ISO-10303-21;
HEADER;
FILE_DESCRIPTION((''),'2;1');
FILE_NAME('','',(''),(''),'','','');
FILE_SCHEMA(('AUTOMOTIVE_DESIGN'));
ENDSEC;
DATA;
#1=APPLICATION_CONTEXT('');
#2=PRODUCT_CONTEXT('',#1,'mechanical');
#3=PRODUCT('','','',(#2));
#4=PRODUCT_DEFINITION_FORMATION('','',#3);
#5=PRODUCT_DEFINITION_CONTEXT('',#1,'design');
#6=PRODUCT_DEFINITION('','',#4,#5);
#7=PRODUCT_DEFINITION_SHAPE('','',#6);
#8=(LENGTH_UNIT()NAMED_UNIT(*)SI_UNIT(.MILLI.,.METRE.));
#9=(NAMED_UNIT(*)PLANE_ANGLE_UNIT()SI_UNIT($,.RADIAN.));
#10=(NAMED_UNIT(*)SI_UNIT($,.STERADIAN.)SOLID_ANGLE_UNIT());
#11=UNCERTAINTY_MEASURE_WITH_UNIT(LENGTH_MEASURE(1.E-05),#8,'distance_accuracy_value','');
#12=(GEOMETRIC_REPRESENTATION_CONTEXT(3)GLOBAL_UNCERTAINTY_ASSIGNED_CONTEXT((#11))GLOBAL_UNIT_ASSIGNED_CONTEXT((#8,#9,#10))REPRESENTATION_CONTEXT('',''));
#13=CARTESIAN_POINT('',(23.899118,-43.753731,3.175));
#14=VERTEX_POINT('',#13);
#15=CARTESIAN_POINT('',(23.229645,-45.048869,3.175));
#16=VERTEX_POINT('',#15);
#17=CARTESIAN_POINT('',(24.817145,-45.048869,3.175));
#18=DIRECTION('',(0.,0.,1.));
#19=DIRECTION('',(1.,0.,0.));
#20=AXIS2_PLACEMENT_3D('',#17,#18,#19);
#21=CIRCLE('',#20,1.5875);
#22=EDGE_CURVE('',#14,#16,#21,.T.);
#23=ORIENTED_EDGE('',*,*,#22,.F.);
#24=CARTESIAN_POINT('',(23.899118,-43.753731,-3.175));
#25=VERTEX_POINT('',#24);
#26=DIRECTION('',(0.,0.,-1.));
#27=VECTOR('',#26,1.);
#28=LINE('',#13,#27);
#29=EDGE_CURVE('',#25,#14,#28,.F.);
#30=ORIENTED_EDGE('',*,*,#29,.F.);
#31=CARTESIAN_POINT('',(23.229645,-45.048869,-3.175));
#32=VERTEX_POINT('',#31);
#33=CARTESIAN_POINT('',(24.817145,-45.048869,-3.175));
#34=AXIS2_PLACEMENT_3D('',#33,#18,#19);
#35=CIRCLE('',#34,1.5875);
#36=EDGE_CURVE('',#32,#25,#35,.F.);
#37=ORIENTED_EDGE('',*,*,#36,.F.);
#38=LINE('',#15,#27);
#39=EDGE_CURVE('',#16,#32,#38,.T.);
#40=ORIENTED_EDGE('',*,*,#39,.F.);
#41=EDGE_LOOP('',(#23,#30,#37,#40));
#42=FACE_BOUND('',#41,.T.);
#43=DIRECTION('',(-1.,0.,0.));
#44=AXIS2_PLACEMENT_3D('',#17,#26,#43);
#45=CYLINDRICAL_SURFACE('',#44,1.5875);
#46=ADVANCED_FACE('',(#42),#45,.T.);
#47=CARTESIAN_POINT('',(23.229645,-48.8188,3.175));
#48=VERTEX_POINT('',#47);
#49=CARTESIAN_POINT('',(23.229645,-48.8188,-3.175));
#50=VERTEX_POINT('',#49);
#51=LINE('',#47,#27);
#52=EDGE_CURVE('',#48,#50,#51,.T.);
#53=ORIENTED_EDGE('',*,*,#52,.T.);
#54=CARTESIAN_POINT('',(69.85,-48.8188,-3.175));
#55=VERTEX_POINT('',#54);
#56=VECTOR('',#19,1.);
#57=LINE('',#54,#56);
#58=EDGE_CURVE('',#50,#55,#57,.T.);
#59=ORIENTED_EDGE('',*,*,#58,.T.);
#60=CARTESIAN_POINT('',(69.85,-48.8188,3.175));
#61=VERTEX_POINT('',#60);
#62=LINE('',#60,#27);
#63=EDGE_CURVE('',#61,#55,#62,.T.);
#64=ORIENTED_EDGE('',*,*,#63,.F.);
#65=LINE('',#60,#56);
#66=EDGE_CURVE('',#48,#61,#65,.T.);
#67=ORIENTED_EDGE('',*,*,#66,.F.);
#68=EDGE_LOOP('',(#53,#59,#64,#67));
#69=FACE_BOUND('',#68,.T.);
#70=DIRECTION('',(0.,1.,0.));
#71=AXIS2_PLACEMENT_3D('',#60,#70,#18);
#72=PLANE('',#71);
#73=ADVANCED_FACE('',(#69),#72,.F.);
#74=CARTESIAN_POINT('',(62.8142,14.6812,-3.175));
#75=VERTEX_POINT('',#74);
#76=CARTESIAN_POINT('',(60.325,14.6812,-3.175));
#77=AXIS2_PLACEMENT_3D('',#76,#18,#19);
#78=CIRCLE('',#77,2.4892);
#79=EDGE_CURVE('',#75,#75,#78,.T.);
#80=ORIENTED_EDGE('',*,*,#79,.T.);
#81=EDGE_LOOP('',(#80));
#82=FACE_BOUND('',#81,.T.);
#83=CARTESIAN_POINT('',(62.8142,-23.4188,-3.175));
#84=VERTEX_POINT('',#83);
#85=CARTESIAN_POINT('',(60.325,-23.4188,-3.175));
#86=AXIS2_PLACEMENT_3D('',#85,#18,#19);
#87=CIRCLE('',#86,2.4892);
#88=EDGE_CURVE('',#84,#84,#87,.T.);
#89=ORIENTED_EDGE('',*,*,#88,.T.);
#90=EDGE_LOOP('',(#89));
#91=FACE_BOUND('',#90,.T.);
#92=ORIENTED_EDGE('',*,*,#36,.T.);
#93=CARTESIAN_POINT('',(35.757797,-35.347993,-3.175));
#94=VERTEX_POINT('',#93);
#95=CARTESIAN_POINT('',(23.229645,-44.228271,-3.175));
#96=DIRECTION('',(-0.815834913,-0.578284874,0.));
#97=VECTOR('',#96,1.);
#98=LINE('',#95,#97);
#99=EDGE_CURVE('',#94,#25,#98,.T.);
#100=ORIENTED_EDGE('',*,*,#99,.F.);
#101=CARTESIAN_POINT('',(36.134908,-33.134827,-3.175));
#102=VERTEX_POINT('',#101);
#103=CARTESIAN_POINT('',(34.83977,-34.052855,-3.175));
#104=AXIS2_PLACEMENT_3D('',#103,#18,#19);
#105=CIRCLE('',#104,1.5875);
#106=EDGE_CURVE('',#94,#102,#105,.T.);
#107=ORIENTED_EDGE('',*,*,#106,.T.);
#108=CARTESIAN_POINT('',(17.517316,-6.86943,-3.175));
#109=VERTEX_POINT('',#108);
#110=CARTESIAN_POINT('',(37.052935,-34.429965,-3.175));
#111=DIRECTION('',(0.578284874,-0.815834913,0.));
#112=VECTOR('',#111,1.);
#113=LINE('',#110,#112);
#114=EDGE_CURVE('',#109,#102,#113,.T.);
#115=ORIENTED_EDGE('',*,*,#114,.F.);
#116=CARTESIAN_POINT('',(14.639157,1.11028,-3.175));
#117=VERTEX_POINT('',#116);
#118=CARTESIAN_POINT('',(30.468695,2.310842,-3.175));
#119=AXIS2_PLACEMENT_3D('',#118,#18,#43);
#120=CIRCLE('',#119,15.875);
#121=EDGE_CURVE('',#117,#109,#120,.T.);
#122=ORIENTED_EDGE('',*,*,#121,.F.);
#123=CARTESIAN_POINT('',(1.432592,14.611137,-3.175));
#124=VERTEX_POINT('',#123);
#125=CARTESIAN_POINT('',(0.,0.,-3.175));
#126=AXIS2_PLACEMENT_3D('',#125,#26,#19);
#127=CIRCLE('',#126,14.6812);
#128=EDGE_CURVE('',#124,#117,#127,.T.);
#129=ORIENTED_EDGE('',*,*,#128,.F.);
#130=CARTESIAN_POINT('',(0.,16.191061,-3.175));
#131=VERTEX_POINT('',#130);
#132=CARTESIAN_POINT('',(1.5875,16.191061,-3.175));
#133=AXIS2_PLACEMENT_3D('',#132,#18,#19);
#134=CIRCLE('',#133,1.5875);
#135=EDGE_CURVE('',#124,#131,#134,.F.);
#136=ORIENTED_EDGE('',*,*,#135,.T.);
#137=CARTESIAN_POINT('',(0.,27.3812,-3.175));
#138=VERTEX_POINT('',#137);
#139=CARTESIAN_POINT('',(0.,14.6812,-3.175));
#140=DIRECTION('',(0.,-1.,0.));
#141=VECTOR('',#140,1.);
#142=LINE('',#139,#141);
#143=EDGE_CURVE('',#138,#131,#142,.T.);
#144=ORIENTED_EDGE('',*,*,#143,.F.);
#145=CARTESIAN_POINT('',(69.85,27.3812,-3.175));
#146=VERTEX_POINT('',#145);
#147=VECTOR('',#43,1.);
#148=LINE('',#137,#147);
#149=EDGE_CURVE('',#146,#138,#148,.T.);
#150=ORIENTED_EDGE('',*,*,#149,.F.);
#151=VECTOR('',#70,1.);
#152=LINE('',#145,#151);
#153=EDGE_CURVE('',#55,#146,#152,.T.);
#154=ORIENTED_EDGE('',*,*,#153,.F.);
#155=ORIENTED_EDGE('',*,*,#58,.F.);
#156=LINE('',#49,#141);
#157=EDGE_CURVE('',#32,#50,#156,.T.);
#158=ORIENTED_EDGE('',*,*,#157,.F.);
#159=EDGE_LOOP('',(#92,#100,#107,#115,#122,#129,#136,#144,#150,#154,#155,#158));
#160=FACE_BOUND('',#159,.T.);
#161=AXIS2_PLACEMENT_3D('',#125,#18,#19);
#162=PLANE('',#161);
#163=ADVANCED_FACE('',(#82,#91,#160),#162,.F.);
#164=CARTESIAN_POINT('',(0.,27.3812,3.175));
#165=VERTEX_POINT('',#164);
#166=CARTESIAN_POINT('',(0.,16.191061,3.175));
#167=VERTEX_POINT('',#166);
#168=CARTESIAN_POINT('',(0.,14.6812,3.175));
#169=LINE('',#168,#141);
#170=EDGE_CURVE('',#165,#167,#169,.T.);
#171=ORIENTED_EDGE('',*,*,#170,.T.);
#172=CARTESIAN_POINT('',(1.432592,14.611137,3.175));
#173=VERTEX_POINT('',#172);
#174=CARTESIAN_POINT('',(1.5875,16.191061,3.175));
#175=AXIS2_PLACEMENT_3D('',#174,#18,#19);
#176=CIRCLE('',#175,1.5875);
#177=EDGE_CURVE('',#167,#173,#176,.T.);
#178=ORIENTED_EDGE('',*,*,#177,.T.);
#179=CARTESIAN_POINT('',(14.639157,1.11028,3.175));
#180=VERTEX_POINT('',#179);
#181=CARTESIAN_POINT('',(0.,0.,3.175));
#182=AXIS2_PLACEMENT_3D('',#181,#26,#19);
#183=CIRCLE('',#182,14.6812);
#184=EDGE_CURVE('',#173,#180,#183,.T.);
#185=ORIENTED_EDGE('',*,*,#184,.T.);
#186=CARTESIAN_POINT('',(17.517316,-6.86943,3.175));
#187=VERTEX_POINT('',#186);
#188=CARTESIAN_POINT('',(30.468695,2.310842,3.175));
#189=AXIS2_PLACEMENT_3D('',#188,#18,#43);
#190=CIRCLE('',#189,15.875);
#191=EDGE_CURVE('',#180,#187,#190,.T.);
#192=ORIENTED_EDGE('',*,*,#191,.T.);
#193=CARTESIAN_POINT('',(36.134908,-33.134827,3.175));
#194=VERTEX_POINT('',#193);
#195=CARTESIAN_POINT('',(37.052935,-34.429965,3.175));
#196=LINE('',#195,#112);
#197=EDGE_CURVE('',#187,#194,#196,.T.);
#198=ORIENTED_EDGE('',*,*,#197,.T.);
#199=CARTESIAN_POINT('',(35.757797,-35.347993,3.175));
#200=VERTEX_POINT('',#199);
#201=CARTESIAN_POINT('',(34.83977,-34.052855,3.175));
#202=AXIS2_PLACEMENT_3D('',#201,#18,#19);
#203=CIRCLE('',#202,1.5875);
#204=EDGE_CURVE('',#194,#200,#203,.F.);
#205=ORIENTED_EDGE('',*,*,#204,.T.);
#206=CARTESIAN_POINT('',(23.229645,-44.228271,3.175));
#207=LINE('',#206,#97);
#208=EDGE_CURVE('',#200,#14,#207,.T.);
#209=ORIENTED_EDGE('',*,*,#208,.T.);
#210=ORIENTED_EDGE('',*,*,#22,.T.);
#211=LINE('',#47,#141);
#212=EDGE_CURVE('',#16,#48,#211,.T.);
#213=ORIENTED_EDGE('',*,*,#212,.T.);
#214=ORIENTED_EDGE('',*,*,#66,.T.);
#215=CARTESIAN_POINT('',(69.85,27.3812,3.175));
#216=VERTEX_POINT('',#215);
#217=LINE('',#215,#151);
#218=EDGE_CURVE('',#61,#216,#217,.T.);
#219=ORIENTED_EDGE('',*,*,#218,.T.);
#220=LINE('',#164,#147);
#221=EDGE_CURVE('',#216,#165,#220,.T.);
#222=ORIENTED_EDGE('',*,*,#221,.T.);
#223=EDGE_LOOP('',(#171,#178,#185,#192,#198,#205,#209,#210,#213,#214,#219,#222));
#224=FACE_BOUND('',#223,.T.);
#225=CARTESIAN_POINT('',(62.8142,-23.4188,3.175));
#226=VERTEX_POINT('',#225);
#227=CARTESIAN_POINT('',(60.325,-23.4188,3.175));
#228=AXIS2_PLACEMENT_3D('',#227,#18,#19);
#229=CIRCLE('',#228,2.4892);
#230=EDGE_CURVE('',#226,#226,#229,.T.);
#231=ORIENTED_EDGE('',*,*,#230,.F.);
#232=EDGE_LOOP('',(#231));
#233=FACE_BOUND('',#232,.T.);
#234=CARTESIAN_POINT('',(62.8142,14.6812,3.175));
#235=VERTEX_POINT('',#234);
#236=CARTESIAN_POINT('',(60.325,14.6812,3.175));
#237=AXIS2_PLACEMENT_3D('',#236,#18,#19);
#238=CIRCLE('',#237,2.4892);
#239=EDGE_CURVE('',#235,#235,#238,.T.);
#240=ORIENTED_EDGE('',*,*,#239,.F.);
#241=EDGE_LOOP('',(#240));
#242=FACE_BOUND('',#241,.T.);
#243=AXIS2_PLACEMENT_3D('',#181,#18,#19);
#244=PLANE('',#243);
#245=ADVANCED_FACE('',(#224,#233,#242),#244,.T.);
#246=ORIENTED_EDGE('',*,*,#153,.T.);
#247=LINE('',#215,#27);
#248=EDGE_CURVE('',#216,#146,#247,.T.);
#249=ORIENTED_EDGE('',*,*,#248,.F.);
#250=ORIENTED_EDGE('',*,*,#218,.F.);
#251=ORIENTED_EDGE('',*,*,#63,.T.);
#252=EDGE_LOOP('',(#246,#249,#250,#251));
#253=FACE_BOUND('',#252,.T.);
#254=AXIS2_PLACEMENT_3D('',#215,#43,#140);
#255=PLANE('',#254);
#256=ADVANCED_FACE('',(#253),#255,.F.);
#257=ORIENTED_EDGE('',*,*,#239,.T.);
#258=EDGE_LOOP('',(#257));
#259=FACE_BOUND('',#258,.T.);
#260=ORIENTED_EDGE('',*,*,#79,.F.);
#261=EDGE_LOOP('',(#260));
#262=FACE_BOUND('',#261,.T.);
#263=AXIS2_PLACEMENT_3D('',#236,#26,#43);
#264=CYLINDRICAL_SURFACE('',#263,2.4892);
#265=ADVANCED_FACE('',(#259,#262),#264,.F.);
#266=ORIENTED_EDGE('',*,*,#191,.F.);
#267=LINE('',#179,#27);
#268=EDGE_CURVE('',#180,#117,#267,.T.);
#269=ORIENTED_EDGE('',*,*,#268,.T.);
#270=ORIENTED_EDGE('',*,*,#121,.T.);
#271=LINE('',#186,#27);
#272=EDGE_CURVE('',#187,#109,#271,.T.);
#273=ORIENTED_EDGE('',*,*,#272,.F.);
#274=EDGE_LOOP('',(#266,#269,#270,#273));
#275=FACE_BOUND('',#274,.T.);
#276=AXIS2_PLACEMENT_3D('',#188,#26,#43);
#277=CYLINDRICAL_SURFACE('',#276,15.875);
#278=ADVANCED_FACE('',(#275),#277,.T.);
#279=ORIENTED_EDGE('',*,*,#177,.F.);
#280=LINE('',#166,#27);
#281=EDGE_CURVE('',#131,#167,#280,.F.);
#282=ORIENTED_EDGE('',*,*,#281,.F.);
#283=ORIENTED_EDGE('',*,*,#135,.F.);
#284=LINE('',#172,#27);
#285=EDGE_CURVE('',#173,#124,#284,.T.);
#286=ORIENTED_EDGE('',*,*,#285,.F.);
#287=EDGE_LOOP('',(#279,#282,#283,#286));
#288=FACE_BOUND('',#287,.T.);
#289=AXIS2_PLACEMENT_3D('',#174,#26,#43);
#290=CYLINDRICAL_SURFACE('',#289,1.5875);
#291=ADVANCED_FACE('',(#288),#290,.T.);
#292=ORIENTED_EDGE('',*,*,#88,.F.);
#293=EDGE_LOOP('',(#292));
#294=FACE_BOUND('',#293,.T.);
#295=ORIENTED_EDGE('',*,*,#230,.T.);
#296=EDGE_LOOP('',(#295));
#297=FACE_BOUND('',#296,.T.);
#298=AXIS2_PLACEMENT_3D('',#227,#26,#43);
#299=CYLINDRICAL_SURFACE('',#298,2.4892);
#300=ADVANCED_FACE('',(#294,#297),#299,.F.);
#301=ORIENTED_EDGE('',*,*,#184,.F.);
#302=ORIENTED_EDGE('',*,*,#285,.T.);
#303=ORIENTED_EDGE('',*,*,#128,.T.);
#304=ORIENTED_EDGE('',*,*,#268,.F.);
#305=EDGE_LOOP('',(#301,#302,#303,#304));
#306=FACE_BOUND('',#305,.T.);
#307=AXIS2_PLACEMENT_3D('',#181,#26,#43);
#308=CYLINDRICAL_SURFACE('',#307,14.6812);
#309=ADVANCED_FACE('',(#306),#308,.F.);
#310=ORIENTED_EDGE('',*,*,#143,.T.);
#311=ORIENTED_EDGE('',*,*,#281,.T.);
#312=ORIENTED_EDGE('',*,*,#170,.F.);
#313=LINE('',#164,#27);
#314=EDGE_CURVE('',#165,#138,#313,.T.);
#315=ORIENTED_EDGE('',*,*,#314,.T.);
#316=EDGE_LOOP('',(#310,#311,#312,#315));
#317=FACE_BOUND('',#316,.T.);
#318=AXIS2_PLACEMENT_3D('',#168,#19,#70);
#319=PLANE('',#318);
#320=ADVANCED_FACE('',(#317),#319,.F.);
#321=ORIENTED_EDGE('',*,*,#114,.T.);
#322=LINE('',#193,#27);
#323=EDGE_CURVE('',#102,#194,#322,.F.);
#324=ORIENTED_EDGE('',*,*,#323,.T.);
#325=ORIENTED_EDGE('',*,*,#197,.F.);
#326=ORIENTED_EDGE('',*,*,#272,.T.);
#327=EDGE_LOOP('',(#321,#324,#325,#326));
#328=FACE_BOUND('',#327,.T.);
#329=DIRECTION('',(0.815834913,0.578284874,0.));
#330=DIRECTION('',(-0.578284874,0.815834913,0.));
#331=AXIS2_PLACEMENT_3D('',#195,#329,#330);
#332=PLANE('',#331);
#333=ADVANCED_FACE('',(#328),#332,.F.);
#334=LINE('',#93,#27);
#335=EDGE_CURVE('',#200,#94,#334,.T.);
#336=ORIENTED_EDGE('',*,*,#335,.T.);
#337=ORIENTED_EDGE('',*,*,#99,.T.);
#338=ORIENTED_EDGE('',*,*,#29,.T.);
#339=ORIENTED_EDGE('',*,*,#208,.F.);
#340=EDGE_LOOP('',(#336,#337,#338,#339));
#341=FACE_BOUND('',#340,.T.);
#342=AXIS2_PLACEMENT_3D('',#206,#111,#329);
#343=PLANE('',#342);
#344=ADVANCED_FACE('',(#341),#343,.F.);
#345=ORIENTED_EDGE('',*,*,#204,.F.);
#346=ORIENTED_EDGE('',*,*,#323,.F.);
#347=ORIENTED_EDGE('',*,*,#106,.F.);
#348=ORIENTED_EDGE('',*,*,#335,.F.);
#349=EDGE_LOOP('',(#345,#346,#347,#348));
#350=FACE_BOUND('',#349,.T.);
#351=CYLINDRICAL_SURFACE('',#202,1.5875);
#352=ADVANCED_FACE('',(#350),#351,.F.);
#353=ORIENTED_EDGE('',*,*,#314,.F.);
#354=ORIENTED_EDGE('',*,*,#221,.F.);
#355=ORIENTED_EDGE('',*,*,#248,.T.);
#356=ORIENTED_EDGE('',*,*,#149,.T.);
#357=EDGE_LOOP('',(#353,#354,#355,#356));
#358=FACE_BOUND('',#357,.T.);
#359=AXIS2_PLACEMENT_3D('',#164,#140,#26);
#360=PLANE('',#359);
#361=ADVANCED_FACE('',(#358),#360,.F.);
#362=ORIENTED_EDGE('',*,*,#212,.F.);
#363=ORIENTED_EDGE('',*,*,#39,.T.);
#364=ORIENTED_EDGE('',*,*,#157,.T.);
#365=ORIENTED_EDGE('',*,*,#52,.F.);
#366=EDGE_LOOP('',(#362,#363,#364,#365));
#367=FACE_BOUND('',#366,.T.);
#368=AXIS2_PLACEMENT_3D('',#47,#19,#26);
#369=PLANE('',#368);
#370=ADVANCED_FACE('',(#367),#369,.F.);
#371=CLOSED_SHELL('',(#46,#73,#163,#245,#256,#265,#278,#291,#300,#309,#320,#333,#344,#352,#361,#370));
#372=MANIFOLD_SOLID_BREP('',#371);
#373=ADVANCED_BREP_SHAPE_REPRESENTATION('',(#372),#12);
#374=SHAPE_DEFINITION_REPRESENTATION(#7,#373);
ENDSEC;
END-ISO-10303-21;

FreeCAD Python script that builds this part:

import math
import FreeCAD as App
import Part
import Sketcher
Q = App.Units.Quantity


def edges_at(feature, points):
    """Names of the edges that pass closest to the given points."""
    edges = feature.Shape.Edges
    near = lambda p: min(range(len(edges)), key=lambda i: edges[i].distToShape(Part.Vertex(*p))[0])
    return sorted({f"Edge{near(p) + 1}" for p in points})

doc = App.newDocument("Part")
body = doc.addObject("PartDesign::Body", "Body")

# Sketch on XY plane
sketch1 = doc.addObject("Sketcher::SketchObject", "Sketch")
body.addObject(sketch1)
sketch1.AttachmentSupport = (doc.XY_Plane, [""])
sketch1.MapMode = "FlatFace"
sketch1.addGeometry([
    Part.LineSegment(App.Vector(37.052935, -34.429965, 0), App.Vector(23.229645, -44.228271, 0)),  # 0
    Part.LineSegment(App.Vector(23.229645, -44.228271, 0), App.Vector(23.229645, -48.8188, 0)),  # 1
    Part.LineSegment(App.Vector(23.229645, -48.8188, 0), App.Vector(69.85, -48.8188, 0)),  # 2
    Part.LineSegment(App.Vector(69.85, -48.8188, 0), App.Vector(69.85, 27.3812, 0)),  # 3
    Part.LineSegment(App.Vector(69.85, 27.3812, 0), App.Vector(0, 27.3812, 0)),  # 4
    Part.LineSegment(App.Vector(0, 27.3812, 0), App.Vector(0, 14.6812, 0)),  # 5
    Part.ArcOfCircle(Part.Circle(App.Vector(0, 0, 0), App.Vector(0, 0, 1), 14.6812), math.radians(4.337189), math.radians(90)),  # 6
    Part.ArcOfCircle(Part.Circle(App.Vector(30.468695, 2.310842, 0), App.Vector(0, 0, 1), 15.875), math.radians(-175.662811), math.radians(-144.67)),  # 7
    Part.LineSegment(App.Vector(17.517316, -6.86943, 0), App.Vector(37.052935, -34.429965, 0)),  # 8
    Part.Circle(App.Vector(60.325, -23.4188, 0), App.Vector(0, 0, 1), 2.4892),  # 9
    Part.Circle(App.Vector(60.325, 14.6812, 0), App.Vector(0, 0, 1), 2.4892),  # 10
], False)
sketch1.addConstraint([
    Sketcher.Constraint("Coincident", 0, 2, 1, 1),
    Sketcher.Constraint("Coincident", 1, 2, 2, 1),
    Sketcher.Constraint("Coincident", 2, 2, 3, 1),
    Sketcher.Constraint("Coincident", 3, 2, 4, 1),
    Sketcher.Constraint("Coincident", 4, 2, 5, 1),
    Sketcher.Constraint("Coincident", 5, 2, 6, 2),
    Sketcher.Constraint("Tangent", 6, 1, 7, 1),
    Sketcher.Constraint("Tangent", 7, 2, 8, 1),
    Sketcher.Constraint("Coincident", 8, 2, 0, 1),
    Sketcher.Constraint("Vertical", 1),
    Sketcher.Constraint("Horizontal", 2),
    Sketcher.Constraint("Vertical", 3),
    Sketcher.Constraint("Horizontal", 4),
    Sketcher.Constraint("Vertical", 5),
    Sketcher.Constraint("Coincident", 6, 3, -1, 1),
    Sketcher.Constraint("Equal", 9, 10),
    Sketcher.Constraint("PointOnObject", 4, 2, -2),
    Sketcher.Constraint("Perpendicular", 0, 8),
    Sketcher.Constraint("Horizontal", 10, 3, 5, 2),
    Sketcher.Constraint("Vertical", 9, 3, 10, 3),
    Sketcher.Constraint("DistanceY", 3, 1, 3, 2, Q("3 in")),
    Sketcher.Constraint("Diameter", 9, Q("0.196 in")),
    Sketcher.Constraint("DistanceY", 5, 2, 5, 1, Q("0.5 in")),
    Sketcher.Constraint("Radius", 6, Q("0.578 in")),
    Sketcher.Constraint("Radius", 7, Q("0.625 in")),
    Sketcher.Constraint("DistanceY", 1, 2, 9, 3, Q("1 in")),
    Sketcher.Constraint("DistanceX", 4, 2, 4, 1, Q("2.75 in")),
    Sketcher.Constraint("Distance", 8, Q("1.33 in")),
    Sketcher.Constraint("Angle", 0, Q("-144.67 deg")),
    Sketcher.Constraint("DistanceX", -1, 1, 9, 3, Q("2.375 in")),
    Sketcher.Constraint("DistanceY", 1, 2, 1, 1, Q("4.590529 mm")),
    Sketcher.Constraint("DistanceX", 2, 1, 2, 2, Q("46.620355 mm")),
])
pad1 = doc.addObject("PartDesign::Pad", "Pad")
body.addObject(pad1)
pad1.Profile = sketch1
pad1.Length = Q("0.25 in")
pad1.Midplane = True
doc.recompute()

fillet = doc.addObject("PartDesign::Fillet", "Fillet")
body.addObject(fillet)
fillet.Base = (pad1, edges_at(pad1, [(0, 14.681, 0), (23.23, -44.228, 0), (37.053, -34.43, 0)]))
fillet.Radius = Q("0.0625 in")

doc.recompute()
